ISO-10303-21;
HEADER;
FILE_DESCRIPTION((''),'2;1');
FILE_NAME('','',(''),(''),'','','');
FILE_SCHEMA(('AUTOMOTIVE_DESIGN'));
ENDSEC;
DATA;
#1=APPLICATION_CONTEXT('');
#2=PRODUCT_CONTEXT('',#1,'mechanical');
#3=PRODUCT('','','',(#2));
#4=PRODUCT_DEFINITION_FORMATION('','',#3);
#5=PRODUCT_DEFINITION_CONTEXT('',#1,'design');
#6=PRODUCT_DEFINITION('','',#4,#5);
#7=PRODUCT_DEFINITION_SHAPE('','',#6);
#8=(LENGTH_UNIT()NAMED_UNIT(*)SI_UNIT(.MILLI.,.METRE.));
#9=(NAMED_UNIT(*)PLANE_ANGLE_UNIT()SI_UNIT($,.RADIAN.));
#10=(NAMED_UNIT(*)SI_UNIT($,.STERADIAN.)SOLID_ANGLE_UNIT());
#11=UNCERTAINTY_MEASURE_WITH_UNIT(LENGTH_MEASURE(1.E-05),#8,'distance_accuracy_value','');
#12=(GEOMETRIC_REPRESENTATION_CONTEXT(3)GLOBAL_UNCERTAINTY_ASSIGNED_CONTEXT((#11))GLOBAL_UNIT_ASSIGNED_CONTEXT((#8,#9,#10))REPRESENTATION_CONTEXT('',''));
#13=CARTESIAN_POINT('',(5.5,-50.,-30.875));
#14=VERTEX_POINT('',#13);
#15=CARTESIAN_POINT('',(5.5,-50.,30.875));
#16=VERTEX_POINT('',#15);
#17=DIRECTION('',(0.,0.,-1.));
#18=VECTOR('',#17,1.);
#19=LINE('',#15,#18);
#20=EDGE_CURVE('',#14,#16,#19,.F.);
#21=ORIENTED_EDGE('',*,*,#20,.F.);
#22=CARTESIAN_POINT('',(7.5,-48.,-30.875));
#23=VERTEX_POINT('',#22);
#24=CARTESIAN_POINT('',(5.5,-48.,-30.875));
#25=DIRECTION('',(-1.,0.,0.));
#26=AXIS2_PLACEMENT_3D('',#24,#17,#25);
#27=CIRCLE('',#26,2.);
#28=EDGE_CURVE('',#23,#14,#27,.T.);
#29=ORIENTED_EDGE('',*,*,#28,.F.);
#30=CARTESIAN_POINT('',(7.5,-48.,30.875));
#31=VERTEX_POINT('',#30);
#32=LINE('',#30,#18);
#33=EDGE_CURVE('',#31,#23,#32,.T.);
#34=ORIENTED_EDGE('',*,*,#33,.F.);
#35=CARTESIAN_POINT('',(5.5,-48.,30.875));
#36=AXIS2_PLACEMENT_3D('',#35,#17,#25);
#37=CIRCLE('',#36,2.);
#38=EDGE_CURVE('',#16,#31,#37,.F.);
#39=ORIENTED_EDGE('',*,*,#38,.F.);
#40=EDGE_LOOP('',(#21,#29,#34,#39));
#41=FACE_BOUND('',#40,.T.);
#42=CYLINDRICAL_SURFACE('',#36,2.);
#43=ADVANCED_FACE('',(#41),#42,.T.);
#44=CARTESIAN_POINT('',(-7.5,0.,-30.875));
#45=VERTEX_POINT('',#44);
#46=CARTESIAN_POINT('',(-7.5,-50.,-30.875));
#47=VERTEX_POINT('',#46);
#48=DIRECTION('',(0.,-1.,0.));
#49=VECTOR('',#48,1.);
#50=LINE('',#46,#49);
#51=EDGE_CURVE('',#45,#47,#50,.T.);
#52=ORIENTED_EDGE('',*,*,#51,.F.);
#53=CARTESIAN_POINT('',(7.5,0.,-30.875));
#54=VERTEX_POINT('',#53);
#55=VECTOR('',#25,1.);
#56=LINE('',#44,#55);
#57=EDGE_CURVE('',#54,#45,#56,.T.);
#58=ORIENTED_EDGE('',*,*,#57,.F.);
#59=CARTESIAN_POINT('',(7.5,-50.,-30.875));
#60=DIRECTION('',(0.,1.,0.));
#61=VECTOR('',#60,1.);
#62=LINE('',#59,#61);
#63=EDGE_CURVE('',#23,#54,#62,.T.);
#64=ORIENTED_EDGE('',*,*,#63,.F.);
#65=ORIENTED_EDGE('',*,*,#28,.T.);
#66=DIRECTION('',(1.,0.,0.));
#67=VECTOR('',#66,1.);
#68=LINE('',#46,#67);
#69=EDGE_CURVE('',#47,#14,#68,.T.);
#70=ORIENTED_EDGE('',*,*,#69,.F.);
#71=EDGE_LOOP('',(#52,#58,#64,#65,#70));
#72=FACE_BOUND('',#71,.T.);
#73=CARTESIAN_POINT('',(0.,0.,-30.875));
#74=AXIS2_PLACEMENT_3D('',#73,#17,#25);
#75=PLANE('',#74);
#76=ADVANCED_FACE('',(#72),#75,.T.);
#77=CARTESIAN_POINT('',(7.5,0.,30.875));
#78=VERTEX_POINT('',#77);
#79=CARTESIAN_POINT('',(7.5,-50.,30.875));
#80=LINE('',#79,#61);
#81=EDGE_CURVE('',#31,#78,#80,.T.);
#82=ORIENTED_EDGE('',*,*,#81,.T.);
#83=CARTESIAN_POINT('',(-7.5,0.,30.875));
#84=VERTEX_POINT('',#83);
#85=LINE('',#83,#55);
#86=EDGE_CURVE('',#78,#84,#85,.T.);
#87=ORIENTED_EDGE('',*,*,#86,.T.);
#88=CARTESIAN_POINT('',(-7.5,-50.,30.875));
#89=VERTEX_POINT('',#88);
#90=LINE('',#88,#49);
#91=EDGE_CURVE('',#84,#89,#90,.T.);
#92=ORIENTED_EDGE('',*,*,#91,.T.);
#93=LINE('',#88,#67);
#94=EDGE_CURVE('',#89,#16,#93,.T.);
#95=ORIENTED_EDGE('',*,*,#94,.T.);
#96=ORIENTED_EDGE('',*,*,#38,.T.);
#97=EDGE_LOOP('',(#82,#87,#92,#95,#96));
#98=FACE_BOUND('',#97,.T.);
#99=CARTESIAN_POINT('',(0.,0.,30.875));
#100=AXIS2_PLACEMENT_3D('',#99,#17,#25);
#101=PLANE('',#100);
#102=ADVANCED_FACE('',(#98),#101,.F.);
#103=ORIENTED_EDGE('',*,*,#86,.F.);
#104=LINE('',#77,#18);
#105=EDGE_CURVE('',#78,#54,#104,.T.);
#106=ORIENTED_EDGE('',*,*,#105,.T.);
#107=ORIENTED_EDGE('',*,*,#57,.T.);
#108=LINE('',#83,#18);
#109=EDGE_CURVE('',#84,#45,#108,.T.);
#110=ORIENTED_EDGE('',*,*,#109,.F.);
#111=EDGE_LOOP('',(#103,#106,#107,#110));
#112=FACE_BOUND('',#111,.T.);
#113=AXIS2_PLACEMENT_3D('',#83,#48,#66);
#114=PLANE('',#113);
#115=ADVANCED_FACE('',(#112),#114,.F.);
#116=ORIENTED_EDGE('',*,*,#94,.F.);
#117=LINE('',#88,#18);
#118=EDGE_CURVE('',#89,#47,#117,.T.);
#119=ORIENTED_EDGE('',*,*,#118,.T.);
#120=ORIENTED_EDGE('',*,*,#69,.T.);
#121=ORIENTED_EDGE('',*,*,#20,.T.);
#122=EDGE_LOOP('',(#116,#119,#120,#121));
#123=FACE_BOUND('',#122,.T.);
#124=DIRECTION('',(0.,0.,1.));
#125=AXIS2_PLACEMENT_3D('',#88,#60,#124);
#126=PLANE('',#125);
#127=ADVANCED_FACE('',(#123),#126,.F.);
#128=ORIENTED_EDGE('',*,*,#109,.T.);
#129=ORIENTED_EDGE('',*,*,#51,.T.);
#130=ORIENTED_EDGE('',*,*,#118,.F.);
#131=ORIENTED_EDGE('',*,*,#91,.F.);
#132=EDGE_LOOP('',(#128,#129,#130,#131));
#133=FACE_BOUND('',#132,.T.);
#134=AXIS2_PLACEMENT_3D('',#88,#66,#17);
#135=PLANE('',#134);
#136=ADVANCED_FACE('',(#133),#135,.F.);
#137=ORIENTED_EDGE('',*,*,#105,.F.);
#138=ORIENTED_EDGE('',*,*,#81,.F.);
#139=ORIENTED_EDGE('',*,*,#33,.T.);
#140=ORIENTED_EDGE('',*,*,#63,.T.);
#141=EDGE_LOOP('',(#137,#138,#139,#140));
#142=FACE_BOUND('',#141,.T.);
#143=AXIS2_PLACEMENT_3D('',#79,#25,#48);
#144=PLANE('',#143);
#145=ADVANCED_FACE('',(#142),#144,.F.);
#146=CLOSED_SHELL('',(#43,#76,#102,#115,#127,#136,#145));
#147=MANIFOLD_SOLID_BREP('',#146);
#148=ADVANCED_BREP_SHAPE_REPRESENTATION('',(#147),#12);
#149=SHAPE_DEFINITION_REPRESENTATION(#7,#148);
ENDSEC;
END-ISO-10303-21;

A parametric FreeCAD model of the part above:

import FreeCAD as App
import Part
import Sketcher

V = App.Vector


def edges_at(feature, points):
    """Names of the edges that pass closest to the given points."""
    edges = feature.Shape.Edges
    near = lambda p: min(range(len(edges)), key=lambda i: edges[i].distToShape(Part.Vertex(*p))[0])
    return sorted({f"Edge{near(p) + 1}" for p in points})

doc = App.newDocument("Part")
body = doc.addObject("PartDesign::Body", "Body")

# Sketch on XY plane
sketch1 = body.newObject("Sketcher::SketchObject", "Sketch")
sketch1.AttachmentSupport = (doc.getObject("XY_Plane"), [""])
sketch1.MapMode = "FlatFace"
sketch1.addGeometry(Part.LineSegment(V(-8, 0, 0), V(-8, -50, 0)), False)
sketch1.addGeometry(Part.LineSegment(V(-8, -50, 0), V(8, -50, 0)), False)
sketch1.addGeometry(Part.LineSegment(V(8, -50, 0), V(8, 0, 0)), False)
sketch1.addGeometry(Part.LineSegment(V(8, 0, 0), V(-8, 0, 0)), False)
sketch1.addConstraint(Sketcher.Constraint("Coincident", 0, 2, 1, 1))
sketch1.addConstraint(Sketcher.Constraint("Coincident", 1, 2, 2, 1))
sketch1.addConstraint(Sketcher.Constraint("Coincident", 2, 2, 3, 1))
sketch1.addConstraint(Sketcher.Constraint("Coincident", 3, 2, 0, 1))
sketch1.addConstraint(Sketcher.Constraint("Vertical", 0))
sketch1.addConstraint(Sketcher.Constraint("Horizontal", 1))
sketch1.addConstraint(Sketcher.Constraint("Vertical", 2))
sketch1.addConstraint(Sketcher.Constraint("Horizontal", 3))
sketch1.addConstraint(Sketcher.Constraint("Symmetric", 2, 2, 3, 2, -1, 1))
sketch1.addConstraint(Sketcher.Constraint("DistanceX", 1, 1, 1, 2, 15.0))
sketch1.addConstraint(Sketcher.Constraint("DistanceY", 0, 2, 0, 1, 50.0))
pad1 = body.newObject("PartDesign::Pad", "Pad")
pad1.Profile = sketch1
pad1.Length = 61.75
pad1.Midplane = True
doc.recompute()

fillet = body.newObject("PartDesign::Fillet", "Fillet")
fillet.Base = (pad1, edges_at(pad1, [(7.5, -50, 0)]))
fillet.Radius = 2

doc.recompute()
